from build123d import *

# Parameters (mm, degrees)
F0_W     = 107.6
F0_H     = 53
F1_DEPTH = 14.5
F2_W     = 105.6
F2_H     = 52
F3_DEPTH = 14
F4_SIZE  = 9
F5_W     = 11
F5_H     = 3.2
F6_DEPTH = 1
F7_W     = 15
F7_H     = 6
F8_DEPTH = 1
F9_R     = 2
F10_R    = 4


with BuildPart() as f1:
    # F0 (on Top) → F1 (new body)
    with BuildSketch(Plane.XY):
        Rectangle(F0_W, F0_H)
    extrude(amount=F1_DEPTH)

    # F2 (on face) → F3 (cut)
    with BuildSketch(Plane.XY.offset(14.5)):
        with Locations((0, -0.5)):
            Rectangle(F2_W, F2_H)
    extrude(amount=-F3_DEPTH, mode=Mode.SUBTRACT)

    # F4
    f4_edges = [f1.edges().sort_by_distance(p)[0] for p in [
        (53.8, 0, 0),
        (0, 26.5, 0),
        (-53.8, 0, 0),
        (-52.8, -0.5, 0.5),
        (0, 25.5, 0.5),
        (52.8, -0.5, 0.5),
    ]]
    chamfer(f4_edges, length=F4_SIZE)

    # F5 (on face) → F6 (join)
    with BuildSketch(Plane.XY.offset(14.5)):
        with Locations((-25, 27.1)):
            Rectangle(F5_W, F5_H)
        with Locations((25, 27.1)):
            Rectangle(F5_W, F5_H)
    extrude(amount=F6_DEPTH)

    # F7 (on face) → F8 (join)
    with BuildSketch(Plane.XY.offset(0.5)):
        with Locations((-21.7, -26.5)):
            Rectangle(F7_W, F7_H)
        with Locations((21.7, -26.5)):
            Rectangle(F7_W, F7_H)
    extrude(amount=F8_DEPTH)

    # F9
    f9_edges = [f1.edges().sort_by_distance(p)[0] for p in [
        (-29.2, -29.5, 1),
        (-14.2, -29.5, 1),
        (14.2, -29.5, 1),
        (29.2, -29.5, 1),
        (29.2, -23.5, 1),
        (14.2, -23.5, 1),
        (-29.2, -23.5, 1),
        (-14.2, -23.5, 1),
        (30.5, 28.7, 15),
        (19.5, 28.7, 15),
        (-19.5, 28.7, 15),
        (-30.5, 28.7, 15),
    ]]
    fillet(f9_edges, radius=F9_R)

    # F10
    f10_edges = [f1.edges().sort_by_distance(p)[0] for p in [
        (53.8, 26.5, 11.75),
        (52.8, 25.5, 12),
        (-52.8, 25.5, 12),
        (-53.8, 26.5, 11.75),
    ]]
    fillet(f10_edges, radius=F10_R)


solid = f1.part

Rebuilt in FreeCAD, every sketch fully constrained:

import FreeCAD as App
import Part
import Sketcher
Q = App.Units.Quantity


def edges_at(feature, points):
    """Names of the edges that pass closest to the given points."""
    edges = feature.Shape.Edges
    near = lambda p: min(range(len(edges)), key=lambda i: edges[i].distToShape(Part.Vertex(*p))[0])
    return sorted({f"Edge{near(p) + 1}" for p in points})


def add_polygon(sketch, points):
    """Adds a closed chain of lines whose ends are joined by coincident constraints."""
    first, n = sketch.GeometryCount, len(points)
    for a, b in zip(points, points[1:] + points[:1]):
        sketch.addGeometry(Part.LineSegment(App.Vector(*a, 0), App.Vector(*b, 0)), False)
    for i in range(n):
        sketch.addConstraint(Sketcher.Constraint("Coincident", first + i, 2, first + (i + 1) % n, 1))

doc = App.newDocument("Part")
body = doc.addObject("PartDesign::Body", "Body")

# Sketch on XY plane
sketch1 = body.newObject("Sketcher::SketchObject", "Sketch")
sketch1.AttachmentSupport = (doc.getObject("XY_Plane"), [""])
sketch1.MapMode = "FlatFace"
add_polygon(sketch1, [(-54, 26), (-54, -26), (54, -26), (54, 26)])  # lines 0-3
sketch1.addConstraint([
    Sketcher.Constraint("Vertical", 0),
    Sketcher.Constraint("Horizontal", 1),
    Sketcher.Constraint("Vertical", 2),
    Sketcher.Constraint("Horizontal", 3),
    Sketcher.Constraint("Symmetric", 0, 2, 2, 2, -1, 1),
    Sketcher.Constraint("DistanceY", 0, 2, 0, 1, Q("53 mm")),
    Sketcher.Constraint("DistanceX", 1, 1, 1, 2, Q("107.6 mm")),
])
pad1 = body.newObject("PartDesign::Pad", "Pad")
pad1.Profile = sketch1
pad1.Length = 14.5

# Sketch on XY plane
sketch2 = body.newObject("Sketcher::SketchObject", "Sketch001")
sketch2.AttachmentSupport = (doc.getObject("XY_Plane"), [""])
sketch2.MapMode = "FlatFace"
sketch2.AttachmentOffset = App.Placement(App.Vector(0, 0, 14.5), App.Rotation())
add_polygon(sketch2, [(-53, 26), (-53, -26), (53, -26), (53, 26)])  # lines 0-3
sketch2.addConstraint([
    Sketcher.Constraint("Vertical", 0),
    Sketcher.Constraint("Horizontal", 1),
    Sketcher.Constraint("Vertical", 2),
    Sketcher.Constraint("Horizontal", 3),
    Sketcher.Constraint("DistanceY", 0, 2, 0, 1, Q("52 mm")),
    Sketcher.Constraint("DistanceX", 1, 1, 1, 2, Q("105.6 mm")),
    Sketcher.Constraint("DistanceX", 0, 2, -1, 1, Q("52.8 mm")),
    Sketcher.Constraint("DistanceY", 0, 2, -1, 1, Q("26.5 mm")),
])
pocket1 = body.newObject("PartDesign::Pocket", "Pocket")
pocket1.Profile = sketch2
pocket1.Length = 14
doc.recompute()

chamfer = body.newObject("PartDesign::Chamfer", "Chamfer")
chamfer.Base = (pocket1, edges_at(pocket1, [
    (53.8, 0, 0),
    (0, 26.5, 0),
    (-53.8, 0, 0),
    (-52.8, -0.5, 0.5),
    (0, 25.5, 0.5),
    (52.8, -0.5, 0.5),
]))
chamfer.Size = 9

# Sketch on XY plane
sketch3 = body.newObject("Sketcher::SketchObject", "Sketch002")
sketch3.AttachmentSupport = (doc.getObject("XY_Plane"), [""])
sketch3.MapMode = "FlatFace"
sketch3.AttachmentOffset = App.Placement(App.Vector(0, 0, 14.5), App.Rotation())
add_polygon(sketch3, [(-30.5, 28.7), (-30.5, 25.5), (-19.5, 25.5), (-19.5, 28.7)])  # lines 0-3
add_polygon(sketch3, [(19.5, 28.7), (19.5, 25.5), (30.5, 25.5), (30.5, 28.7)])  # lines 4-7
sketch3.addConstraint([
    Sketcher.Constraint("Vertical", 0),
    Sketcher.Constraint("Horizontal", 1),
    Sketcher.Constraint("Vertical", 2),
    Sketcher.Constraint("Horizontal", 3),
    Sketcher.Constraint("Vertical", 4),
    Sketcher.Constraint("Horizontal", 5),
    Sketcher.Constraint("Vertical", 6),
    Sketcher.Constraint("Horizontal", 7),
    Sketcher.Constraint("Symmetric", 1, 2, 4, 2, -2),
    Sketcher.Constraint("Symmetric", 3, 2, 6, 2, -2),
    Sketcher.Constraint("DistanceX", 1, 1, 1, 2, Q("11 mm")),
    Sketcher.Constraint("DistanceY", 0, 2, 0, 1, Q("3.2 mm")),
    Sketcher.Constraint("DistanceX", 1, 2, 4, 2, Q("39 mm")),
    Sketcher.Constraint("DistanceY", -1, 1, 0, 2, Q("25.5 mm")),
])
pad2 = body.newObject("PartDesign::Pad", "Pad001")
pad2.Profile = sketch3
pad2.Length = 1

# Sketch on XY plane
sketch4 = body.newObject("Sketcher::SketchObject", "Sketch003")
sketch4.AttachmentSupport = (doc.getObject("XY_Plane"), [""])
sketch4.MapMode = "FlatFace"
sketch4.AttachmentOffset = App.Placement(App.Vector(0, 0, 0.5), App.Rotation())
add_polygon(sketch4, [(-29, -24), (-29, -30), (-14, -30), (-14, -24)])  # lines 0-3
add_polygon(sketch4, [(14, -24), (14, -30), (29, -30), (29, -24)])  # lines 4-7
sketch4.addConstraint([
    Sketcher.Constraint("Vertical", 0),
    Sketcher.Constraint("Horizontal", 1),
    Sketcher.Constraint("Vertical", 2),
    Sketcher.Constraint("Horizontal", 3),
    Sketcher.Constraint("Vertical", 4),
    Sketcher.Constraint("Horizontal", 5),
    Sketcher.Constraint("Vertical", 6),
    Sketcher.Constraint("Horizontal", 7),
    Sketcher.Constraint("Symmetric", 1, 2, 4, 2, -2),
    Sketcher.Constraint("Symmetric", 3, 2, 6, 2, -2),
    Sketcher.Constraint("DistanceX", 1, 1, 1, 2, Q("15 mm")),
    Sketcher.Constraint("DistanceY", 0, 2, 0, 1, Q("6 mm")),
    Sketcher.Constraint("DistanceX", 0, 2, -1, 1, Q("29.2 mm")),
    Sketcher.Constraint("DistanceY", 0, 2, -1, 1, Q("29.5 mm")),
])
pad3 = body.newObject("PartDesign::Pad", "Pad002")
pad3.Profile = sketch4
pad3.Length = 1
doc.recompute()

fillet = body.newObject("PartDesign::Fillet", "Fillet")
fillet.Base = (pad3, edges_at(pad3, [
    (-29.2, -29.5, 1),
    (-14.2, -29.5, 1),
    (14.2, -29.5, 1),
    (29.2, -29.5, 1),
    (29.2, -23.5, 1),
    (14.2, -23.5, 1),
    (-29.2, -23.5, 1),
    (-14.2, -23.5, 1),
    (30.5, 28.7, 15),
    (19.5, 28.7, 15),
    (-19.5, 28.7, 15),
    (-30.5, 28.7, 15),
]))
fillet.Radius = 2
doc.recompute()

fillet2 = body.newObject("PartDesign::Fillet", "Fillet001")
fillet2.Base = (fillet, edges_at(fillet, [
    (53.8, 26.5, 11.75),
    (52.8, 25.5, 12),
    (-52.8, 25.5, 12),
    (-53.8, 26.5, 11.75),
]))
fillet2.Radius = 4

doc.recompute()
